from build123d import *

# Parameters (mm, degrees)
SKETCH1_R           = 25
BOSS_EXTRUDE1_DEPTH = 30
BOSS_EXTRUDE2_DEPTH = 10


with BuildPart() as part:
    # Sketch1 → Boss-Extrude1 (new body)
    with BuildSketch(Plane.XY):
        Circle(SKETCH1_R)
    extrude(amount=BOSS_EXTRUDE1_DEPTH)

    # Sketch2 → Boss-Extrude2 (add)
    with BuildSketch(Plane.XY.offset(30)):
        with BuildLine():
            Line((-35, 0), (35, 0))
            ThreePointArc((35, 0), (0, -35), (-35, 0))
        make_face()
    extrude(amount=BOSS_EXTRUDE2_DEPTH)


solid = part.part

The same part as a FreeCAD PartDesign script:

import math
import FreeCAD as App
import Part
import Sketcher

V = App.Vector

doc = App.newDocument("Part")
body = doc.addObject("PartDesign::Body", "Body")

# Sketch on XY plane
sketch1 = body.newObject("Sketcher::SketchObject", "Sketch")
sketch1.AttachmentSupport = (doc.getObject("XY_Plane"), [""])
sketch1.MapMode = "FlatFace"
sketch1.addGeometry(Part.Circle(V(0, 0, 0), V(0, 0, 1), 25), False)
sketch1.addConstraint([
    Sketcher.Constraint("Coincident", 0, 3, -1, 1),
    Sketcher.Constraint("Diameter", 0, 50.0),
])
pad1 = body.newObject("PartDesign::Pad", "Pad")
pad1.Profile = sketch1
pad1.Length = 30

# Sketch on XY plane
sketch2 = body.newObject("Sketcher::SketchObject", "Sketch001")
sketch2.AttachmentSupport = (doc.getObject("XY_Plane"), [""])
sketch2.MapMode = "FlatFace"
sketch2.AttachmentOffset = App.Placement(V(0, 0, 30), App.Rotation())
sketch2.addGeometry([
    Part.LineSegment(V(35, 0, 0), V(-35, 0, 0)),
    Part.ArcOfCircle(Part.Circle(V(0, 0, 0), V(0, 0, 1), 35), math.radians(180), math.radians(360)),
], False)
sketch2.addConstraint([
    Sketcher.Constraint("Coincident", 0, 1, 1, 2),
    Sketcher.Constraint("Coincident", 1, 1, 0, 2),
    Sketcher.Constraint("Horizontal", 0),
    Sketcher.Constraint("Coincident", 1, 3, -1, 1),
    Sketcher.Constraint("PointOnObject", 0, 1, -1),
    Sketcher.Constraint("Radius", 1, 35.0),
])
pad2 = body.newObject("PartDesign::Pad", "Pad001")
pad2.Profile = sketch2
pad2.Length = 10

doc.recompute()
